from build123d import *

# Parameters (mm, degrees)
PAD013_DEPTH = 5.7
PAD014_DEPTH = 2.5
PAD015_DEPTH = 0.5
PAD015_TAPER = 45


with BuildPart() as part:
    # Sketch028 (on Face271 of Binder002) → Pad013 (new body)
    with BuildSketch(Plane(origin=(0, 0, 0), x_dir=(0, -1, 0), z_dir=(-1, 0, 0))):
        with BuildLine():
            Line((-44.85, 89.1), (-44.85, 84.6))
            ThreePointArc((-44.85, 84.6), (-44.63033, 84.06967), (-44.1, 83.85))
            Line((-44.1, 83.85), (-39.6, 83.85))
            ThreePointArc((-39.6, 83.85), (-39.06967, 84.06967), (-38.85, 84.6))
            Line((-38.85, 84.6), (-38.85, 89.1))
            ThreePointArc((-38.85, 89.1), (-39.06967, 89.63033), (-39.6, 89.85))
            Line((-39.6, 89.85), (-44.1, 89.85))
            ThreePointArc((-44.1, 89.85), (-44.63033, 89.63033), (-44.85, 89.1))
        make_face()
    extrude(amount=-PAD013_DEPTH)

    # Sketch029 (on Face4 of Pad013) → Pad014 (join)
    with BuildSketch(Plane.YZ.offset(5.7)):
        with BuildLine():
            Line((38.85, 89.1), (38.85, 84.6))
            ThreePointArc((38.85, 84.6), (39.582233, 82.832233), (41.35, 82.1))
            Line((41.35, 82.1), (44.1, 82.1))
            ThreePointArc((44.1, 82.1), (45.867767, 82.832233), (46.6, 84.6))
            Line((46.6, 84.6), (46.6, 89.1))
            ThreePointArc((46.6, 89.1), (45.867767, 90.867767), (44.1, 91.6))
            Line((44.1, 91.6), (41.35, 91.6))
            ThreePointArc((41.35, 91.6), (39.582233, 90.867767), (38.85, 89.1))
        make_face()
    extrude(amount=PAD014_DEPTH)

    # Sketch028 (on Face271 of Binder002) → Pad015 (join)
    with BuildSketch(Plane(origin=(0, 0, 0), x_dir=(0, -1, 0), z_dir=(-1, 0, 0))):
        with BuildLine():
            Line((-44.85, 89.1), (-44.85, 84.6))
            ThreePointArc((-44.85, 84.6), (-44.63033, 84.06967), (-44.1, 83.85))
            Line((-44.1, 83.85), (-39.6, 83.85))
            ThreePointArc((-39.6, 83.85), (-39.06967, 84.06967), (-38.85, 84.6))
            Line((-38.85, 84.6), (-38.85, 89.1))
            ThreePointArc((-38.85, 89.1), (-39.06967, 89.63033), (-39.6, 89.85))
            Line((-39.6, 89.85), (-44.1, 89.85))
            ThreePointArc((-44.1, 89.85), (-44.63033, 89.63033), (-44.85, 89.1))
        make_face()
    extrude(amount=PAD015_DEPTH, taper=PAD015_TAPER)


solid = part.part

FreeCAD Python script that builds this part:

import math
import FreeCAD as App
import Part
import Sketcher
Q = App.Units.Quantity

doc = App.newDocument("Part")
body = doc.addObject("PartDesign::Body", "Body")

# Sketch on YZ plane
sketch1 = doc.addObject("Sketcher::SketchObject", "Sketch")
body.addObject(sketch1)
sketch1.AttachmentSupport = (doc.YZ_Plane, [""])
sketch1.MapMode = "FlatFace"
sketch1.addGeometry(Part.LineSegment(App.Vector(44.9, 89.1, 0), App.Vector(44.9, 84.6, 0)), False)
sketch1.addGeometry(Part.ArcOfCircle(Part.Circle(App.Vector(44.1, 84.6, 0), App.Vector(0, 0, 1), 0.8), math.radians(-90), math.radians(0)), False)
sketch1.addGeometry(Part.LineSegment(App.Vector(44.1, 83.8, 0), App.Vector(39.6, 83.8, 0)), False)
sketch1.addGeometry(Part.ArcOfCircle(Part.Circle(App.Vector(39.6, 84.6, 0), App.Vector(0, 0, 1), 0.8), math.radians(-180), math.radians(-90)), False)
sketch1.addGeometry(Part.LineSegment(App.Vector(38.9, 84.6, 0), App.Vector(38.9, 89.1, 0)), False)
sketch1.addGeometry(Part.ArcOfCircle(Part.Circle(App.Vector(39.6, 89.1, 0), App.Vector(0, 0, 1), 0.8), math.radians(90), math.radians(180)), False)
sketch1.addGeometry(Part.LineSegment(App.Vector(39.6, 89.8, 0), App.Vector(44.1, 89.8, 0)), False)
sketch1.addGeometry(Part.ArcOfCircle(Part.Circle(App.Vector(44.1, 89.1, 0), App.Vector(0, 0, 1), 0.8), math.radians(0), math.radians(90)), False)
sketch1.addConstraint(Sketcher.Constraint("Tangent", 0, 2, 1, 2))
sketch1.addConstraint(Sketcher.Constraint("Tangent", 1, 1, 2, 1))
sketch1.addConstraint(Sketcher.Constraint("Tangent", 2, 2, 3, 2))
sketch1.addConstraint(Sketcher.Constraint("Tangent", 3, 1, 4, 1))
sketch1.addConstraint(Sketcher.Constraint("Tangent", 4, 2, 5, 2))
sketch1.addConstraint(Sketcher.Constraint("Tangent", 5, 1, 6, 1))
sketch1.addConstraint(Sketcher.Constraint("Tangent", 6, 2, 7, 2))
sketch1.addConstraint(Sketcher.Constraint("Tangent", 7, 1, 0, 1))
sketch1.addConstraint(Sketcher.Constraint("Vertical", 0))
sketch1.addConstraint(Sketcher.Constraint("Horizontal", 2))
sketch1.addConstraint(Sketcher.Constraint("Vertical", 4))
sketch1.addConstraint(Sketcher.Constraint("Horizontal", 6))
sketch1.addConstraint(Sketcher.Constraint("Equal", 1, 3))
sketch1.addConstraint(Sketcher.Constraint("Equal", 3, 5))
sketch1.addConstraint(Sketcher.Constraint("Equal", 5, 7))
sketch1.addConstraint(Sketcher.Constraint("Equal", 6, 0))
sketch1.addConstraint(Sketcher.Constraint("Radius", 1, Q("0.75 mm")))
sketch1.addConstraint(Sketcher.Constraint("DistanceX", 2, 2, 2, 1, Q("4.5 mm")))
sketch1.addConstraint(Sketcher.Constraint("DistanceX", -1, 1, 1, 3, Q("44.1 mm")))
sketch1.addConstraint(Sketcher.Constraint("DistanceY", -1, 1, 1, 3, Q("84.6 mm")))
pad1 = doc.addObject("PartDesign::Pad", "Pad")
body.addObject(pad1)
pad1.Profile = sketch1
pad1.Length = 5.7

# Sketch on YZ plane
sketch2 = doc.addObject("Sketcher::SketchObject", "Sketch001")
body.addObject(sketch2)
sketch2.AttachmentSupport = (doc.YZ_Plane, [""])
sketch2.MapMode = "FlatFace"
sketch2.AttachmentOffset = App.Placement(App.Vector(0, 0, 5.7), App.Rotation())
sketch2.addGeometry(Part.LineSegment(App.Vector(38.9, 89.1, 0), App.Vector(38.9, 84.6, 0)), False)
sketch2.addGeometry(Part.ArcOfCircle(Part.Circle(App.Vector(41.3, 84.6, 0), App.Vector(0, 0, 1), 2.5), math.radians(180), math.radians(270)), False)
sketch2.addGeometry(Part.LineSegment(App.Vector(41.4, 82.1, 0), App.Vector(44.1, 82.1, 0)), False)
sketch2.addGeometry(Part.ArcOfCircle(Part.Circle(App.Vector(44.1, 84.6, 0), App.Vector(0, 0, 1), 2.5), math.radians(-90), math.radians(0)), False)
sketch2.addGeometry(Part.LineSegment(App.Vector(46.6, 84.6, 0), App.Vector(46.6, 89.1, 0)), False)
sketch2.addGeometry(Part.ArcOfCircle(Part.Circle(App.Vector(44.1, 89.1, 0), App.Vector(0, 0, 1), 2.5), math.radians(0), math.radians(90)), False)
sketch2.addGeometry(Part.LineSegment(App.Vector(44.1, 91.6, 0), App.Vector(41.4, 91.6, 0)), False)
sketch2.addGeometry(Part.ArcOfCircle(Part.Circle(App.Vector(41.3, 89.1, 0), App.Vector(0, 0, 1), 2.5), math.radians(90), math.radians(180)), False)
sketch2.addConstraint(Sketcher.Constraint("Tangent", 0, 2, 1, 1))
sketch2.addConstraint(Sketcher.Constraint("Tangent", 1, 2, 2, 1))
sketch2.addConstraint(Sketcher.Constraint("Tangent", 2, 2, 3, 1))
sketch2.addConstraint(Sketcher.Constraint("Tangent", 3, 2, 4, 1))
sketch2.addConstraint(Sketcher.Constraint("Tangent", 4, 2, 5, 1))
sketch2.addConstraint(Sketcher.Constraint("Tangent", 5, 2, 6, 1))
sketch2.addConstraint(Sketcher.Constraint("Tangent", 6, 2, 7, 1))
sketch2.addConstraint(Sketcher.Constraint("Tangent", 7, 2, 0, 1))
sketch2.addConstraint(Sketcher.Constraint("Vertical", 0))
sketch2.addConstraint(Sketcher.Constraint("Horizontal", 2))
sketch2.addConstraint(Sketcher.Constraint("Vertical", 4))
sketch2.addConstraint(Sketcher.Constraint("Horizontal", 6))
sketch2.addConstraint(Sketcher.Constraint("Equal", 1, 3))
sketch2.addConstraint(Sketcher.Constraint("Equal", 3, 5))
sketch2.addConstraint(Sketcher.Constraint("Equal", 5, 7))
sketch2.addConstraint(Sketcher.Constraint("Radius", 1, Q("2.5 mm")))
sketch2.addConstraint(Sketcher.Constraint("DistanceY", 0, 2, 0, 1, Q("4.5 mm")))
sketch2.addConstraint(Sketcher.Constraint("DistanceX", 2, 1, 2, 2, Q("2.75 mm")))
sketch2.addConstraint(Sketcher.Constraint("DistanceY", -1, 1, 1, 3, Q("84.6 mm")))
sketch2.addConstraint(Sketcher.Constraint("DistanceX", -1, 1, 3, 3, Q("44.1 mm")))
pad2 = doc.addObject("PartDesign::Pad", "Pad001")
body.addObject(pad2)
pad2.Profile = sketch2
pad2.Length = 2.5

# Sketch on YZ plane
sketch3 = doc.addObject("Sketcher::SketchObject", "Sketch002")
body.addObject(sketch3)
sketch3.AttachmentSupport = (doc.YZ_Plane, [""])
sketch3.MapMode = "FlatFace"
sketch3.addGeometry(Part.LineSegment(App.Vector(44.9, 89.1, 0), App.Vector(44.9, 84.6, 0)), False)
sketch3.addGeometry(Part.ArcOfCircle(Part.Circle(App.Vector(44.1, 84.6, 0), App.Vector(0, 0, 1), 0.8), math.radians(-90), math.radians(0)), False)
sketch3.addGeometry(Part.LineSegment(App.Vector(44.1, 83.8, 0), App.Vector(39.6, 83.8, 0)), False)
sketch3.addGeometry(Part.ArcOfCircle(Part.Circle(App.Vector(39.6, 84.6, 0), App.Vector(0, 0, 1), 0.8), math.radians(-180), math.radians(-90)), False)
sketch3.addGeometry(Part.LineSegment(App.Vector(38.9, 84.6, 0), App.Vector(38.9, 89.1, 0)), False)
sketch3.addGeometry(Part.ArcOfCircle(Part.Circle(App.Vector(39.6, 89.1, 0), App.Vector(0, 0, 1), 0.8), math.radians(90), math.radians(180)), False)
sketch3.addGeometry(Part.LineSegment(App.Vector(39.6, 89.8, 0), App.Vector(44.1, 89.8, 0)), False)
sketch3.addGeometry(Part.ArcOfCircle(Part.Circle(App.Vector(44.1, 89.1, 0), App.Vector(0, 0, 1), 0.8), math.radians(0), math.radians(90)), False)
sketch3.addConstraint(Sketcher.Constraint("Tangent", 0, 2, 1, 2))
sketch3.addConstraint(Sketcher.Constraint("Tangent", 1, 1, 2, 1))
sketch3.addConstraint(Sketcher.Constraint("Tangent", 2, 2, 3, 2))
sketch3.addConstraint(Sketcher.Constraint("Tangent", 3, 1, 4, 1))
sketch3.addConstraint(Sketcher.Constraint("Tangent", 4, 2, 5, 2))
sketch3.addConstraint(Sketcher.Constraint("Tangent", 5, 1, 6, 1))
sketch3.addConstraint(Sketcher.Constraint("Tangent", 6, 2, 7, 2))
sketch3.addConstraint(Sketcher.Constraint("Tangent", 7, 1, 0, 1))
sketch3.addConstraint(Sketcher.Constraint("Vertical", 0))
sketch3.addConstraint(Sketcher.Constraint("Horizontal", 2))
sketch3.addConstraint(Sketcher.Constraint("Vertical", 4))
sketch3.addConstraint(Sketcher.Constraint("Horizontal", 6))
sketch3.addConstraint(Sketcher.Constraint("Equal", 1, 3))
sketch3.addConstraint(Sketcher.Constraint("Equal", 3, 5))
sketch3.addConstraint(Sketcher.Constraint("Equal", 5, 7))
sketch3.addConstraint(Sketcher.Constraint("Equal", 6, 0))
sketch3.addConstraint(Sketcher.Constraint("Radius", 1, Q("0.75 mm")))
sketch3.addConstraint(Sketcher.Constraint("DistanceX", 2, 2, 2, 1, Q("4.5 mm")))
sketch3.addConstraint(Sketcher.Constraint("DistanceX", -1, 1, 1, 3, Q("44.1 mm")))
sketch3.addConstraint(Sketcher.Constraint("DistanceY", -1, 1, 1, 3, Q("84.6 mm")))
pad3 = doc.addObject("PartDesign::Pad", "Pad002")
body.addObject(pad3)
pad3.Profile = sketch3
pad3.Length = 0.5
pad3.Reversed = True
pad3.TaperAngle = -45

doc.recompute()
